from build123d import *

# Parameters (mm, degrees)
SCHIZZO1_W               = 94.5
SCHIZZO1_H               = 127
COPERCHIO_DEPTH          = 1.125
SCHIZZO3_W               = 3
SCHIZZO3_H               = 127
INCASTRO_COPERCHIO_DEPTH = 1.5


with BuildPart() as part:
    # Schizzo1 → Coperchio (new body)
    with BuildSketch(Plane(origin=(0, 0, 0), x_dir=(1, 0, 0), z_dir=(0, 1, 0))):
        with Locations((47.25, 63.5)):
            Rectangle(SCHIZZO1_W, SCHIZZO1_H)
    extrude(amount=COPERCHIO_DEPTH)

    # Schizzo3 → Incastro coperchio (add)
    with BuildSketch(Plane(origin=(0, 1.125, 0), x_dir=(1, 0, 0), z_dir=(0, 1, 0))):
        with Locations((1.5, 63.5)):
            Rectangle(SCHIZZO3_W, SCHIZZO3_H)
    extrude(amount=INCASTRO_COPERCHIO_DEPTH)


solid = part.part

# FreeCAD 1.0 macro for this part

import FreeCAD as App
import Part
import Sketcher

V = App.Vector
Q = App.Units.Quantity


def add_polygon(sketch, points):
    """Adds a closed chain of lines whose ends are joined by coincident constraints."""
    first, n = sketch.GeometryCount, len(points)
    for a, b in zip(points, points[1:] + points[:1]):
        sketch.addGeometry(Part.LineSegment(App.Vector(*a, 0), App.Vector(*b, 0)), False)
    for i in range(n):
        sketch.addConstraint(Sketcher.Constraint("Coincident", first + i, 2, first + (i + 1) % n, 1))

doc = App.newDocument("Part")
body = doc.addObject("PartDesign::Body", "Body")

# Sketch on XZ plane
sketch1 = body.newObject("Sketcher::SketchObject", "Sketch")
sketch1.AttachmentSupport = (doc.getObject("XZ_Plane"), [""])
sketch1.MapMode = "FlatFace"
add_polygon(sketch1, [(0, -127), (0, 0), (94, 0), (94, -127)])  # lines 0-3
sketch1.addConstraint([
    Sketcher.Constraint("Vertical", 0),
    Sketcher.Constraint("Horizontal", 1),
    Sketcher.Constraint("Vertical", 2),
    Sketcher.Constraint("Horizontal", 3),
    Sketcher.Constraint("Coincident", 0, 2, -1, 1),
    Sketcher.Constraint("DistanceY", 0, 1, 0, 2, Q("127 mm")),
    Sketcher.Constraint("DistanceX", 1, 1, 1, 2, Q("94.5 mm")),
])
pad1 = body.newObject("PartDesign::Pad", "Pad")
pad1.Profile = sketch1
pad1.Length = 1.125
pad1.Reversed = True

# Sketch on XZ plane
sketch2 = body.newObject("Sketcher::SketchObject", "Sketch001")
sketch2.AttachmentSupport = (doc.getObject("XZ_Plane"), [""])
sketch2.MapMode = "FlatFace"
sketch2.AttachmentOffset = App.Placement(V(0, 0, -1.125), App.Rotation())
add_polygon(sketch2, [(0, -127), (0, 0), (3, 0), (3, -127)])  # lines 0-3
sketch2.addConstraint([
    Sketcher.Constraint("Vertical", 0),
    Sketcher.Constraint("Horizontal", 1),
    Sketcher.Constraint("Vertical", 2),
    Sketcher.Constraint("Horizontal", 3),
    Sketcher.Constraint("Coincident", 0, 2, -1, 1),
    Sketcher.Constraint("DistanceX", 1, 1, 1, 2, Q("3 mm")),
    Sketcher.Constraint("DistanceY", 0, 1, 0, 2, Q("127 mm")),
])
pad2 = body.newObject("PartDesign::Pad", "Pad001")
pad2.Profile = sketch2
pad2.Length = 1.5
pad2.Reversed = True

doc.recompute()
